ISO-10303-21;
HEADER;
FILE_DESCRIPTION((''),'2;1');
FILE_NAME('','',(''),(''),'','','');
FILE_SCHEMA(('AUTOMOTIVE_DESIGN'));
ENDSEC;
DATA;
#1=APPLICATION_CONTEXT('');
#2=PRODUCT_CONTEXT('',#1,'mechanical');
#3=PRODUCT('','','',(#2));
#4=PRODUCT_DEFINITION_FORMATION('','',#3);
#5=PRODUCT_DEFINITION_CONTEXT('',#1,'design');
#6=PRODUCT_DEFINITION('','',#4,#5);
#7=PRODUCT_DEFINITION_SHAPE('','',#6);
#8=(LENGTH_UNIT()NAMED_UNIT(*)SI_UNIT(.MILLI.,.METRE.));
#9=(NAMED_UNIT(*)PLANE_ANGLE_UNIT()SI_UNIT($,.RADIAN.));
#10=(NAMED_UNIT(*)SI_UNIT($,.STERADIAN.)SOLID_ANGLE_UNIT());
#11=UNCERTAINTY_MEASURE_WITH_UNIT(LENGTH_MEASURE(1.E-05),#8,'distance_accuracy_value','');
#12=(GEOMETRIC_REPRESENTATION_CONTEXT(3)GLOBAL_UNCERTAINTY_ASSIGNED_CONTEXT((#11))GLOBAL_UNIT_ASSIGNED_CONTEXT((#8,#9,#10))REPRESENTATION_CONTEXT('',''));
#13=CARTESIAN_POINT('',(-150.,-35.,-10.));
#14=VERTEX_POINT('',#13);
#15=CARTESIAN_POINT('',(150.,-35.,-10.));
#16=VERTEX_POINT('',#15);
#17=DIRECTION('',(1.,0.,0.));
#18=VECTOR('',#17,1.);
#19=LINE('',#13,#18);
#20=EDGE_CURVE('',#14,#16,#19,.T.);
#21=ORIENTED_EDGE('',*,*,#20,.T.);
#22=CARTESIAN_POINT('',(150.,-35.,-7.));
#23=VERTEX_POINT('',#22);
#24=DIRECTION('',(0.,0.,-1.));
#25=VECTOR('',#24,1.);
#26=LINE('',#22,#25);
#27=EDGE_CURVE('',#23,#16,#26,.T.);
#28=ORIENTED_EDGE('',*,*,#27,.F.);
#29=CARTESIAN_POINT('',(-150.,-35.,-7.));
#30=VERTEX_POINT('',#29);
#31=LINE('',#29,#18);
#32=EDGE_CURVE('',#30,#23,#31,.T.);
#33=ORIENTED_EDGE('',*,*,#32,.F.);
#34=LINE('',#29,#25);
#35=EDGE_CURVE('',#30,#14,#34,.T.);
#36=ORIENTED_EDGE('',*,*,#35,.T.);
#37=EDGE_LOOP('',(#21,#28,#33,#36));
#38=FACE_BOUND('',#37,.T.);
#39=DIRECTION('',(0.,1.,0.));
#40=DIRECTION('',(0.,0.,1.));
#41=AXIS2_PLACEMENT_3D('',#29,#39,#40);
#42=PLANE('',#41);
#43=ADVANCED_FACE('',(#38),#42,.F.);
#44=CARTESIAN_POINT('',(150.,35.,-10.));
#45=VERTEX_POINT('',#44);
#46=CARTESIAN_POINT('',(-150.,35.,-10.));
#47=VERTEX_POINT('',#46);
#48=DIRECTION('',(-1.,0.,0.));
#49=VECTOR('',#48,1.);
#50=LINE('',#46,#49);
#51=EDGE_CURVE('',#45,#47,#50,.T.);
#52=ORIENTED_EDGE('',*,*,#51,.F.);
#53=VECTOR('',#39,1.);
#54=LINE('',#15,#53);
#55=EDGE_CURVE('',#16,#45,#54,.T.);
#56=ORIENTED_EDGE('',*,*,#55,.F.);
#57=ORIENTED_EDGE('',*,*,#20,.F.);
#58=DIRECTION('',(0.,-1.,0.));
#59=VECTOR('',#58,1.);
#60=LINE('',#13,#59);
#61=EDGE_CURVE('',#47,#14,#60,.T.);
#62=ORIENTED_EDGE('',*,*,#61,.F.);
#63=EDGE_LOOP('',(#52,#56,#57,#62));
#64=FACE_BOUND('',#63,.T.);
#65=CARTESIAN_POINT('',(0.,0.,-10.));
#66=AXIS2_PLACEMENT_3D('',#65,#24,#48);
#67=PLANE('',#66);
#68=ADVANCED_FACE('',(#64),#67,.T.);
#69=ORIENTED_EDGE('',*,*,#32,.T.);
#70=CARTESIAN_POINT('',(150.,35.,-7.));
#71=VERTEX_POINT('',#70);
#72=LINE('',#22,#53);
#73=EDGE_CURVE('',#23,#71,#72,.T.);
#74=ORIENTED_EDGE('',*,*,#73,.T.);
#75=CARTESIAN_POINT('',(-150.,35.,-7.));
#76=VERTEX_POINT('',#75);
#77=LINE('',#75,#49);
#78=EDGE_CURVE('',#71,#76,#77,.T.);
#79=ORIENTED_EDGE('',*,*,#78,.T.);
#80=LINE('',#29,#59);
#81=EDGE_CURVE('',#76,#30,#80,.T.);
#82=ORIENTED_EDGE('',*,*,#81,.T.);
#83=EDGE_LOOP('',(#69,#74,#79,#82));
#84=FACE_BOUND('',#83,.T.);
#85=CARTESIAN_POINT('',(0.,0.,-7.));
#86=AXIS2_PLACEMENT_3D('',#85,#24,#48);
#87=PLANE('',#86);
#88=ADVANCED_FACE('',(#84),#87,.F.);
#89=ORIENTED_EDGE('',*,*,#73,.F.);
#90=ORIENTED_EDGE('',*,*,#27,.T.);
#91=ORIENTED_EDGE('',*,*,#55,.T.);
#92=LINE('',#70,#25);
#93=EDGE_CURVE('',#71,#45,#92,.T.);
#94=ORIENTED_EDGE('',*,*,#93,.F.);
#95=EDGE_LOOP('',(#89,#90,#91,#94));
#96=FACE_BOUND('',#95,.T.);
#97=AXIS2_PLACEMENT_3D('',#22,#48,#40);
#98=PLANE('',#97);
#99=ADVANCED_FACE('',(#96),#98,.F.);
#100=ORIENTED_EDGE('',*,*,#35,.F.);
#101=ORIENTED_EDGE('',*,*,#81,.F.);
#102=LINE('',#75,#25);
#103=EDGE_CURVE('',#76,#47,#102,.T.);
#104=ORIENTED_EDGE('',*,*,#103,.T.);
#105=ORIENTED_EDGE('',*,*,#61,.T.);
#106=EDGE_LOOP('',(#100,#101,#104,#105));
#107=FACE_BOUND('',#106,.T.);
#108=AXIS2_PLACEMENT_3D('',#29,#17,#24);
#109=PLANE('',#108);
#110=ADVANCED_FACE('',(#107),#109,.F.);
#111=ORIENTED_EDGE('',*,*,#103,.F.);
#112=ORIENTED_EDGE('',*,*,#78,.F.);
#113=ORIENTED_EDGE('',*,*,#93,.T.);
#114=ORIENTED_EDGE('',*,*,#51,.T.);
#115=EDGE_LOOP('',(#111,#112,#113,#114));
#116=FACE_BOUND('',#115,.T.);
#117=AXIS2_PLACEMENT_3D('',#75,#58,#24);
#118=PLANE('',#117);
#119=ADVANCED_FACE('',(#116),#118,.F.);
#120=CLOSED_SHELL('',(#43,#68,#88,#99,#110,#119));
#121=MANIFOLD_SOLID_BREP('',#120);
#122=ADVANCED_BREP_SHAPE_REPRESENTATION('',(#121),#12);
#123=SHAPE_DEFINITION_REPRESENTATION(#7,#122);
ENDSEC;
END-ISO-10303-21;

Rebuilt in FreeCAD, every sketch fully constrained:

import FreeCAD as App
import Part
import Sketcher

V = App.Vector
Q = App.Units.Quantity

doc = App.newDocument("Part")
body = doc.addObject("PartDesign::Body", "Body")

# Sketch on XY plane
sketch1 = body.newObject("Sketcher::SketchObject", "Sketch")
sketch1.AttachmentSupport = (doc.getObject("XY_Plane"), [""])
sketch1.MapMode = "FlatFace"
sketch1.AttachmentOffset = App.Placement(V(0, 0, -10), App.Rotation())
sketch1.addGeometry(Part.LineSegment(V(-150, 35, 0), V(-150, -35, 0)), False)
sketch1.addGeometry(Part.LineSegment(V(-150, -35, 0), V(150, -35, 0)), False)
sketch1.addGeometry(Part.LineSegment(V(150, -35, 0), V(150, 35, 0)), False)
sketch1.addGeometry(Part.LineSegment(V(150, 35, 0), V(-150, 35, 0)), False)
sketch1.addConstraint(Sketcher.Constraint("Coincident", 0, 2, 1, 1))
sketch1.addConstraint(Sketcher.Constraint("Coincident", 1, 2, 2, 1))
sketch1.addConstraint(Sketcher.Constraint("Coincident", 2, 2, 3, 1))
sketch1.addConstraint(Sketcher.Constraint("Coincident", 3, 2, 0, 1))
sketch1.addConstraint(Sketcher.Constraint("Vertical", 0))
sketch1.addConstraint(Sketcher.Constraint("Horizontal", 1))
sketch1.addConstraint(Sketcher.Constraint("Vertical", 2))
sketch1.addConstraint(Sketcher.Constraint("Horizontal", 3))
sketch1.addConstraint(Sketcher.Constraint("Symmetric", 0, 2, 2, 2, -1, 1))
sketch1.addConstraint(Sketcher.Constraint("DistanceX", 1, 1, 1, 2, Q("300 mm")))
sketch1.addConstraint(Sketcher.Constraint("DistanceY", 0, 2, 0, 1, Q("70 mm")))
pad1 = body.newObject("PartDesign::Pad", "Pad")
pad1.Profile = sketch1
pad1.Length = 3

doc.recompute()
